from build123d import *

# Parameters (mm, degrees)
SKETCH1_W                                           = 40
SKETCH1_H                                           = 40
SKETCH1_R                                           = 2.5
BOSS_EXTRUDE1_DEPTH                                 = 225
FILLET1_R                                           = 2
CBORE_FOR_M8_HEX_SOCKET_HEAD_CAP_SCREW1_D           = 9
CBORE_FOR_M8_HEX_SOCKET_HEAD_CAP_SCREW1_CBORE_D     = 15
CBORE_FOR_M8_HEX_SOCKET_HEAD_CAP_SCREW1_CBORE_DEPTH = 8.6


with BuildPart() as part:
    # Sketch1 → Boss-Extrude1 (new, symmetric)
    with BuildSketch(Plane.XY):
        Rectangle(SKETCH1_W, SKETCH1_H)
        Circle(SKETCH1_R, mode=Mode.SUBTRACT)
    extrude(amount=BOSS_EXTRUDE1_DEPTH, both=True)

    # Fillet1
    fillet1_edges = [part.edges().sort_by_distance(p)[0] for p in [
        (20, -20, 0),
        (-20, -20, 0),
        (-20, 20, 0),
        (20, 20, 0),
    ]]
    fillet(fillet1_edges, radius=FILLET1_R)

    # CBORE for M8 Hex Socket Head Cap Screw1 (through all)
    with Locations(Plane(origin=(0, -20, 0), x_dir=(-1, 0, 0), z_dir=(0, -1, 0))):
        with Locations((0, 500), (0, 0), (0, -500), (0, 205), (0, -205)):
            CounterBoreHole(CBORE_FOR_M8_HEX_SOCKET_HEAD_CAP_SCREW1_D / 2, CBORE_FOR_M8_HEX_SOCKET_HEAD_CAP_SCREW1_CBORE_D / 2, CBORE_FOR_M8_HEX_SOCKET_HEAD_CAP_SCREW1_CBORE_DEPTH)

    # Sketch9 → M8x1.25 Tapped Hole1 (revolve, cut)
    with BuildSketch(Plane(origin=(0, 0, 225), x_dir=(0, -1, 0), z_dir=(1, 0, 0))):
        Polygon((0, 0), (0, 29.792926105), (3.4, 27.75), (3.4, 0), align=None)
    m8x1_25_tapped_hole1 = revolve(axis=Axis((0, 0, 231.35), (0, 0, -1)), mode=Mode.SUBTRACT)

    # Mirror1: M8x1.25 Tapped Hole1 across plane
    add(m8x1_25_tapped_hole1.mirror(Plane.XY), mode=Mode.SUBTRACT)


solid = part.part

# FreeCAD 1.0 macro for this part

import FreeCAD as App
import Part
import Sketcher
Q = App.Units.Quantity


def edges_at(feature, points):
    """Names of the edges that pass closest to the given points."""
    edges = feature.Shape.Edges
    near = lambda p: min(range(len(edges)), key=lambda i: edges[i].distToShape(Part.Vertex(*p))[0])
    return sorted({f"Edge{near(p) + 1}" for p in points})

doc = App.newDocument("Part")
body = doc.addObject("PartDesign::Body", "Body")

sketch1 = body.newObject("Sketcher::SketchObject", "Sketch")
sketch1.AttachmentSupport = (doc.getObject("XY_Plane"), [""])
sketch1.MapMode = "FlatFace"
sketch1.addGeometry([
    Part.LineSegment(App.Vector(-20, 20, 0), App.Vector(-20, -20, 0)),
    Part.LineSegment(App.Vector(-20, -20, 0), App.Vector(20, -20, 0)),
    Part.LineSegment(App.Vector(20, -20, 0), App.Vector(20, 20, 0)),
    Part.LineSegment(App.Vector(20, 20, 0), App.Vector(-20, 20, 0)),
    Part.Circle(App.Vector(0, 0, 0), App.Vector(0, 0, 1), 2.5),
], False)
sketch1.addConstraint([
    Sketcher.Constraint("Coincident", 0, 2, 1, 1),
    Sketcher.Constraint("Coincident", 1, 2, 2, 1),
    Sketcher.Constraint("Coincident", 2, 2, 3, 1),
    Sketcher.Constraint("Coincident", 3, 2, 0, 1),
    Sketcher.Constraint("Vertical", 0),
    Sketcher.Constraint("Horizontal", 1),
    Sketcher.Constraint("Vertical", 2),
    Sketcher.Constraint("Horizontal", 3),
    Sketcher.Constraint("Coincident", 4, 3, -1, 1),
    Sketcher.Constraint("Symmetric", 0, 2, 2, 2, -1, 1),
    Sketcher.Constraint("Equal", 3, 0),
    Sketcher.Constraint("Diameter", 4, Q("5 mm")),
    Sketcher.Constraint("DistanceX", 1, 1, 1, 2, Q("40 mm")),
])
pad1 = body.newObject("PartDesign::Pad", "Pad")
pad1.Profile = sketch1
pad1.Length = 450
pad1.Midplane = True
doc.recompute()

fillet = body.newObject("PartDesign::Fillet", "Fillet")
fillet.Base = (pad1, edges_at(pad1, [
    (20, -20, 0),
    (-20, -20, 0),
    (-20, 20, 0),
    (20, 20, 0),
]))
fillet.Radius = 2

sketch2 = body.newObject("Sketcher::SketchObject", "Sketch001")
sketch2.AttachmentSupport = (doc.getObject("XZ_Plane"), [""])
sketch2.MapMode = "FlatFace"
sketch2.AttachmentOffset = App.Placement(App.Vector(0, 0, 20), App.Rotation())
sketch2.addGeometry([
    Part.Circle(App.Vector(0, -500, 0), App.Vector(0, 0, 1), 4.5),
    Part.Circle(App.Vector(0, 0, 0), App.Vector(0, 0, 1), 4.5),
    Part.Circle(App.Vector(0, 500, 0), App.Vector(0, 0, 1), 4.5),
    Part.Circle(App.Vector(0, -205, 0), App.Vector(0, 0, 1), 4.5),
    Part.Circle(App.Vector(0, 205, 0), App.Vector(0, 0, 1), 4.5),
], False)
sketch2.addConstraint([
    Sketcher.Constraint("Coincident", 1, 3, -1, 1),
    Sketcher.Constraint("Equal", 0, 1),
    Sketcher.Constraint("Equal", 1, 2),
    Sketcher.Constraint("Equal", 2, 3),
    Sketcher.Constraint("Equal", 3, 4),
    Sketcher.Constraint("Symmetric", 0, 3, 2, 3, -1, 1),
    Sketcher.Constraint("Symmetric", 3, 3, 4, 3, -1, 1),
    Sketcher.Constraint("PointOnObject", 0, 3, -2),
    Sketcher.Constraint("PointOnObject", 3, 3, -2),
    Sketcher.Constraint("Diameter", 0, Q("9 mm")),
    Sketcher.Constraint("DistanceY", 0, 3, -1, 1, Q("500 mm")),
    Sketcher.Constraint("DistanceY", 3, 3, -1, 1, Q("205 mm")),
])
doc.recompute()
hole = body.newObject("PartDesign::Hole", "Hole")
hole.Profile = sketch2
hole.ThreadType = "None"
hole.Diameter = 9
hole.DepthType = "ThroughAll"
hole.HoleCutType = "Counterbore"
hole.HoleCutDiameter = 15
hole.HoleCutDepth = 8.6

sketch3 = body.newObject("Sketcher::SketchObject", "Sketch002")
sketch3.AttachmentSupport = (doc.getObject("YZ_Plane"), [""])
sketch3.MapMode = "FlatFace"
sketch3.addGeometry([
    Part.LineSegment(App.Vector(0, 195.207074, 0), App.Vector(0, 225, 0)),
    Part.LineSegment(App.Vector(0, 225, 0), App.Vector(-3.4, 225, 0)),
    Part.LineSegment(App.Vector(-3.4, 225, 0), App.Vector(-3.4, 197.25, 0)),
    Part.LineSegment(App.Vector(-3.4, 197.25, 0), App.Vector(0, 195.207074, 0)),
], False)
sketch3.addConstraint([
    Sketcher.Constraint("Coincident", 0, 2, 1, 1),
    Sketcher.Constraint("Coincident", 1, 2, 2, 1),
    Sketcher.Constraint("Coincident", 2, 2, 3, 1),
    Sketcher.Constraint("Coincident", 3, 2, 0, 1),
    Sketcher.Constraint("Vertical", 0),
    Sketcher.Constraint("Horizontal", 1),
    Sketcher.Constraint("Vertical", 2),
    Sketcher.Constraint("PointOnObject", 0, 2, -2),
    Sketcher.Constraint("Angle", 3, Q("-31 deg")),
    Sketcher.Constraint("DistanceX", 1, 2, 1, 1, Q("3.4 mm")),
    Sketcher.Constraint("DistanceY", -1, 1, 0, 2, Q("225 mm")),
    Sketcher.Constraint("DistanceY", 2, 2, 2, 1, Q("27.75 mm")),
])
groove = body.newObject("PartDesign::Groove", "Groove")
groove.Profile = sketch3
groove.ReferenceAxis = (sketch3, ["V_Axis"])
groove.Angle = 360
doc.recompute()

mirrored = body.newObject("PartDesign::Mirrored", "Mirrored")
mirrored.Originals = [groove]
mirrored.MirrorPlane = (doc.getObject("XY_Plane"), [""])
body.Tip = mirrored

doc.recompute()
